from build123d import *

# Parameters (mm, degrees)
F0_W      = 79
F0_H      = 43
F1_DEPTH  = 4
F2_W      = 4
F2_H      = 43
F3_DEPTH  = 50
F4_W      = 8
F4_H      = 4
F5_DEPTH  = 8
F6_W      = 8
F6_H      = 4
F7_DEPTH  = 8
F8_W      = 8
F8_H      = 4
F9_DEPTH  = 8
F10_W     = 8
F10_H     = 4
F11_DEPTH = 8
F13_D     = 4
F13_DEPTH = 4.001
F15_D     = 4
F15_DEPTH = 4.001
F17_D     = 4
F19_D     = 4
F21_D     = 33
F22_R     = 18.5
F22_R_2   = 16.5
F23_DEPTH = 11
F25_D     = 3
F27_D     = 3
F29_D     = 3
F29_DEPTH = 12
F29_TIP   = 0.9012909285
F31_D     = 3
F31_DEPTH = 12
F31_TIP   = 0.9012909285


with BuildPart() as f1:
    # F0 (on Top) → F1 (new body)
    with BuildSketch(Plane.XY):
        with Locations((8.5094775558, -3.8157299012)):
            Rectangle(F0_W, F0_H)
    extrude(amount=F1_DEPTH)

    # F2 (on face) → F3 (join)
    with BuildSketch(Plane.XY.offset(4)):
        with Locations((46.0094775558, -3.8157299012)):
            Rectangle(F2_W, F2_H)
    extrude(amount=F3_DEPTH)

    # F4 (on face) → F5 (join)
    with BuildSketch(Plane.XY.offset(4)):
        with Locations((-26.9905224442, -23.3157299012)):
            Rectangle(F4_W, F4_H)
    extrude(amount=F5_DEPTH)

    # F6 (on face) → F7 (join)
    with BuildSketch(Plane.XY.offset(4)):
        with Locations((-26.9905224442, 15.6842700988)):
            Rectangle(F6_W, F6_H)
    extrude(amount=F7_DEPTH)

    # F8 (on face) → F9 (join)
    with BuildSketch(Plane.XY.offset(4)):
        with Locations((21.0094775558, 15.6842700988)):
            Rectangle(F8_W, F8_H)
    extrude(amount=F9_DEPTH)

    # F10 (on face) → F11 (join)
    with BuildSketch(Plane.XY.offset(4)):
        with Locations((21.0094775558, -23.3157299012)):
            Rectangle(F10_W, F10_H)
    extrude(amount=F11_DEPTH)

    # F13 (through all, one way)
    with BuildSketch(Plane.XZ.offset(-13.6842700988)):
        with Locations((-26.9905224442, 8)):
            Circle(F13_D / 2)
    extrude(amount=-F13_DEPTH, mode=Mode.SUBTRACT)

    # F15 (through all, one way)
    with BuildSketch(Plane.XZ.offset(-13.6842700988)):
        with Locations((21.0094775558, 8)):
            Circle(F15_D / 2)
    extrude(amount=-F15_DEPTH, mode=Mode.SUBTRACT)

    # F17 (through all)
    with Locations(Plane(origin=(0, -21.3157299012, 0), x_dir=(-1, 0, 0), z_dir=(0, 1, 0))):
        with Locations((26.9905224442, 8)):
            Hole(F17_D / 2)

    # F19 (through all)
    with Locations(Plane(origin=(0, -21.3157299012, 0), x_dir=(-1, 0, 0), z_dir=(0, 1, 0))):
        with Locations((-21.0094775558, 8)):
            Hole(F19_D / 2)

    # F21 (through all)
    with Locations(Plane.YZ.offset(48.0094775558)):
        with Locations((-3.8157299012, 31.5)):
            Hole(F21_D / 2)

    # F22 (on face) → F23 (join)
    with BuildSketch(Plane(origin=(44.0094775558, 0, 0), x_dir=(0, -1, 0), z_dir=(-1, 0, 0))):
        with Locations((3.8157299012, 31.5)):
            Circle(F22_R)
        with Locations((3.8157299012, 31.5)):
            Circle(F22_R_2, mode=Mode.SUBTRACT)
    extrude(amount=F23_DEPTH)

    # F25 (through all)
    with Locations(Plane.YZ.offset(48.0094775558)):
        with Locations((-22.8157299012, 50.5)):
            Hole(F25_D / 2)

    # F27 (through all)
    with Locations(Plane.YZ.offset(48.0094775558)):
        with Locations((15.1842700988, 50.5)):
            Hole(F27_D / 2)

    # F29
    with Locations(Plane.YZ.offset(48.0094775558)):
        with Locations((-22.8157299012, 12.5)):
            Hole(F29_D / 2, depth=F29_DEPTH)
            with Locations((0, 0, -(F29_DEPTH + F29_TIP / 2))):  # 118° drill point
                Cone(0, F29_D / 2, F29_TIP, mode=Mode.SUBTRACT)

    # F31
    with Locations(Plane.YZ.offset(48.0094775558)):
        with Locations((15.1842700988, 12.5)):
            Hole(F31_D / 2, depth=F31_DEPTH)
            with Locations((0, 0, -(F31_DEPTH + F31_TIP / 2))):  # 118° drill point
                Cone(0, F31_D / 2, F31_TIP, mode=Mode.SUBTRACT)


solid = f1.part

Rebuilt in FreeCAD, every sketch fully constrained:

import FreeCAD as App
import Part
import Sketcher

doc = App.newDocument("Part")
body = doc.addObject("PartDesign::Body", "Body")

sketch1 = doc.addObject("Sketcher::SketchObject", "Sketch")
body.addObject(sketch1)
sketch1.AttachmentSupport = (doc.XY_Plane, [""])
sketch1.MapMode = "FlatFace"
sketch1.addGeometry([
    Part.LineSegment(App.Vector(-31, 18, 0), App.Vector(-31, -25, 0)),
    Part.LineSegment(App.Vector(-31, -25, 0), App.Vector(48, -25, 0)),
    Part.LineSegment(App.Vector(48, -25, 0), App.Vector(48, 18, 0)),
    Part.LineSegment(App.Vector(48, 18, 0), App.Vector(-31, 18, 0)),
], False)
sketch1.addConstraint([
    Sketcher.Constraint("Coincident", 0, 2, 1, 1),
    Sketcher.Constraint("Coincident", 1, 2, 2, 1),
    Sketcher.Constraint("Coincident", 2, 2, 3, 1),
    Sketcher.Constraint("Coincident", 3, 2, 0, 1),
    Sketcher.Constraint("Vertical", 0),
    Sketcher.Constraint("Horizontal", 1),
    Sketcher.Constraint("Vertical", 2),
    Sketcher.Constraint("Horizontal", 3),
    Sketcher.Constraint("DistanceX", 1, 1, 1, 2, 79.0),
    Sketcher.Constraint("DistanceY", 0, 2, 0, 1, 43.0),
    Sketcher.Constraint("DistanceY", 0, 2, -1, 1, 25.31573),
    Sketcher.Constraint("DistanceX", 0, 2, -1, 1, 30.990522),
])
pad1 = doc.addObject("PartDesign::Pad", "Pad")
body.addObject(pad1)
pad1.Profile = sketch1
pad1.Length = 4

sketch2 = doc.addObject("Sketcher::SketchObject", "Sketch001")
body.addObject(sketch2)
sketch2.AttachmentSupport = (doc.XY_Plane, [""])
sketch2.MapMode = "FlatFace"
sketch2.AttachmentOffset = App.Placement(App.Vector(0, 0, 4), App.Rotation())
sketch2.addGeometry([
    Part.LineSegment(App.Vector(44, 17.7, 0), App.Vector(44, -25.3, 0)),
    Part.LineSegment(App.Vector(44, -25.3, 0), App.Vector(48, -25.3, 0)),
    Part.LineSegment(App.Vector(48, -25.3, 0), App.Vector(48, 17.7, 0)),
    Part.LineSegment(App.Vector(48, 17.7, 0), App.Vector(44, 17.7, 0)),
], False)
sketch2.addConstraint([
    Sketcher.Constraint("Coincident", 0, 2, 1, 1),
    Sketcher.Constraint("Coincident", 1, 2, 2, 1),
    Sketcher.Constraint("Coincident", 2, 2, 3, 1),
    Sketcher.Constraint("Coincident", 3, 2, 0, 1),
    Sketcher.Constraint("Vertical", 0),
    Sketcher.Constraint("Horizontal", 1),
    Sketcher.Constraint("Vertical", 2),
    Sketcher.Constraint("Horizontal", 3),
    Sketcher.Constraint("DistanceX", 1, 1, 1, 2, 4.0),
    Sketcher.Constraint("DistanceY", 0, 2, 0, 1, 43.0),
    Sketcher.Constraint("DistanceY", 0, 2, -1, 1, 25.31573),
    Sketcher.Constraint("DistanceX", -1, 1, 0, 2, 44.009478),
])
pad2 = doc.addObject("PartDesign::Pad", "Pad001")
body.addObject(pad2)
pad2.Profile = sketch2
pad2.Length = 50

sketch3 = doc.addObject("Sketcher::SketchObject", "Sketch002")
body.addObject(sketch3)
sketch3.AttachmentSupport = (doc.XY_Plane, [""])
sketch3.MapMode = "FlatFace"
sketch3.AttachmentOffset = App.Placement(App.Vector(0, 0, 4), App.Rotation())
sketch3.addGeometry([
    Part.LineSegment(App.Vector(-31, -21.3, 0), App.Vector(-31, -25.3, 0)),
    Part.LineSegment(App.Vector(-31, -25.3, 0), App.Vector(-23, -25.3, 0)),
    Part.LineSegment(App.Vector(-23, -25.3, 0), App.Vector(-23, -21.3, 0)),
    Part.LineSegment(App.Vector(-23, -21.3, 0), App.Vector(-31, -21.3, 0)),
], False)
sketch3.addConstraint([
    Sketcher.Constraint("Coincident", 0, 2, 1, 1),
    Sketcher.Constraint("Coincident", 1, 2, 2, 1),
    Sketcher.Constraint("Coincident", 2, 2, 3, 1),
    Sketcher.Constraint("Coincident", 3, 2, 0, 1),
    Sketcher.Constraint("Vertical", 0),
    Sketcher.Constraint("Horizontal", 1),
    Sketcher.Constraint("Vertical", 2),
    Sketcher.Constraint("Horizontal", 3),
    Sketcher.Constraint("DistanceX", 1, 1, 1, 2, 8.0),
    Sketcher.Constraint("DistanceY", 0, 2, 0, 1, 4.0),
    Sketcher.Constraint("DistanceY", 0, 2, -1, 1, 25.31573),
    Sketcher.Constraint("DistanceX", 0, 2, -1, 1, 30.990522),
])
pad3 = doc.addObject("PartDesign::Pad", "Pad002")
body.addObject(pad3)
pad3.Profile = sketch3
pad3.Length = 8

sketch4 = doc.addObject("Sketcher::SketchObject", "Sketch003")
body.addObject(sketch4)
sketch4.AttachmentSupport = (doc.XY_Plane, [""])
sketch4.MapMode = "FlatFace"
sketch4.AttachmentOffset = App.Placement(App.Vector(0, 0, 4), App.Rotation())
sketch4.addGeometry([
    Part.LineSegment(App.Vector(-31, 17.7, 0), App.Vector(-31, 13.7, 0)),
    Part.LineSegment(App.Vector(-31, 13.7, 0), App.Vector(-23, 13.7, 0)),
    Part.LineSegment(App.Vector(-23, 13.7, 0), App.Vector(-23, 17.7, 0)),
    Part.LineSegment(App.Vector(-23, 17.7, 0), App.Vector(-31, 17.7, 0)),
], False)
sketch4.addConstraint([
    Sketcher.Constraint("Coincident", 0, 2, 1, 1),
    Sketcher.Constraint("Coincident", 1, 2, 2, 1),
    Sketcher.Constraint("Coincident", 2, 2, 3, 1),
    Sketcher.Constraint("Coincident", 3, 2, 0, 1),
    Sketcher.Constraint("Vertical", 0),
    Sketcher.Constraint("Horizontal", 1),
    Sketcher.Constraint("Vertical", 2),
    Sketcher.Constraint("Horizontal", 3),
    Sketcher.Constraint("DistanceX", 1, 1, 1, 2, 8.0),
    Sketcher.Constraint("DistanceY", 0, 2, 0, 1, 4.0),
    Sketcher.Constraint("DistanceY", -1, 1, 0, 2, 13.68427),
    Sketcher.Constraint("DistanceX", 0, 2, -1, 1, 30.990522),
])
pad4 = doc.addObject("PartDesign::Pad", "Pad003")
body.addObject(pad4)
pad4.Profile = sketch4
pad4.Length = 8

sketch5 = doc.addObject("Sketcher::SketchObject", "Sketch004")
body.addObject(sketch5)
sketch5.AttachmentSupport = (doc.XY_Plane, [""])
sketch5.MapMode = "FlatFace"
sketch5.AttachmentOffset = App.Placement(App.Vector(0, 0, 4), App.Rotation())
sketch5.addGeometry([
    Part.LineSegment(App.Vector(17, 17.7, 0), App.Vector(17, 13.7, 0)),
    Part.LineSegment(App.Vector(17, 13.7, 0), App.Vector(25, 13.7, 0)),
    Part.LineSegment(App.Vector(25, 13.7, 0), App.Vector(25, 17.7, 0)),
    Part.LineSegment(App.Vector(25, 17.7, 0), App.Vector(17, 17.7, 0)),
], False)
sketch5.addConstraint([
    Sketcher.Constraint("Coincident", 0, 2, 1, 1),
    Sketcher.Constraint("Coincident", 1, 2, 2, 1),
    Sketcher.Constraint("Coincident", 2, 2, 3, 1),
    Sketcher.Constraint("Coincident", 3, 2, 0, 1),
    Sketcher.Constraint("Vertical", 0),
    Sketcher.Constraint("Horizontal", 1),
    Sketcher.Constraint("Vertical", 2),
    Sketcher.Constraint("Horizontal", 3),
    Sketcher.Constraint("DistanceX", 1, 1, 1, 2, 8.0),
    Sketcher.Constraint("DistanceY", 0, 2, 0, 1, 4.0),
    Sketcher.Constraint("DistanceY", -1, 1, 0, 2, 13.68427),
    Sketcher.Constraint("DistanceX", -1, 1, 0, 2, 17.009478),
])
pad5 = doc.addObject("PartDesign::Pad", "Pad004")
body.addObject(pad5)
pad5.Profile = sketch5
pad5.Length = 8

sketch6 = doc.addObject("Sketcher::SketchObject", "Sketch005")
body.addObject(sketch6)
sketch6.AttachmentSupport = (doc.XY_Plane, [""])
sketch6.MapMode = "FlatFace"
sketch6.AttachmentOffset = App.Placement(App.Vector(0, 0, 4), App.Rotation())
sketch6.addGeometry([
    Part.LineSegment(App.Vector(17, -21.3, 0), App.Vector(17, -25.3, 0)),
    Part.LineSegment(App.Vector(17, -25.3, 0), App.Vector(25, -25.3, 0)),
    Part.LineSegment(App.Vector(25, -25.3, 0), App.Vector(25, -21.3, 0)),
    Part.LineSegment(App.Vector(25, -21.3, 0), App.Vector(17, -21.3, 0)),
], False)
sketch6.addConstraint([
    Sketcher.Constraint("Coincident", 0, 2, 1, 1),
    Sketcher.Constraint("Coincident", 1, 2, 2, 1),
    Sketcher.Constraint("Coincident", 2, 2, 3, 1),
    Sketcher.Constraint("Coincident", 3, 2, 0, 1),
    Sketcher.Constraint("Vertical", 0),
    Sketcher.Constraint("Horizontal", 1),
    Sketcher.Constraint("Vertical", 2),
    Sketcher.Constraint("Horizontal", 3),
    Sketcher.Constraint("DistanceX", 1, 1, 1, 2, 8.0),
    Sketcher.Constraint("DistanceY", 0, 2, 0, 1, 4.0),
    Sketcher.Constraint("DistanceY", 0, 2, -1, 1, 25.31573),
    Sketcher.Constraint("DistanceX", -1, 1, 0, 2, 17.009478),
])
pad6 = doc.addObject("PartDesign::Pad", "Pad005")
body.addObject(pad6)
pad6.Profile = sketch6
pad6.Length = 8

sketch7 = doc.addObject("Sketcher::SketchObject", "Sketch006")
body.addObject(sketch7)
sketch7.AttachmentSupport = (doc.XZ_Plane, [""])
sketch7.MapMode = "FlatFace"
sketch7.AttachmentOffset = App.Placement(App.Vector(0, 0, -13.68427), App.Rotation())
sketch7.addGeometry(Part.Circle(App.Vector(-27, 8, 0), App.Vector(0, 0, 1), 2), False)
sketch7.addConstraint([
    Sketcher.Constraint("Diameter", 0, 4.0),
    Sketcher.Constraint("DistanceY", -1, 1, 0, 3, 8.0),
    Sketcher.Constraint("DistanceX", 0, 3, -1, 1, 26.990522),
])
pocket1 = doc.addObject("PartDesign::Pocket", "Pocket")
body.addObject(pocket1)
pocket1.Profile = sketch7
pocket1.Type = "ThroughAll"

sketch8 = doc.addObject("Sketcher::SketchObject", "Sketch007")
body.addObject(sketch8)
sketch8.AttachmentSupport = (doc.XZ_Plane, [""])
sketch8.MapMode = "FlatFace"
sketch8.AttachmentOffset = App.Placement(App.Vector(0, 0, -13.68427), App.Rotation())
sketch8.addGeometry(Part.Circle(App.Vector(21, 8, 0), App.Vector(0, 0, 1), 2), False)
sketch8.addConstraint([
    Sketcher.Constraint("Diameter", 0, 4.0),
    Sketcher.Constraint("DistanceY", -1, 1, 0, 3, 8.0),
    Sketcher.Constraint("DistanceX", -1, 1, 0, 3, 21.009478),
])
pocket2 = doc.addObject("PartDesign::Pocket", "Pocket001")
body.addObject(pocket2)
pocket2.Profile = sketch8
pocket2.Type = "ThroughAll"

sketch9 = doc.addObject("Sketcher::SketchObject", "Sketch008")
body.addObject(sketch9)
sketch9.AttachmentSupport = (doc.XZ_Plane, [""])
sketch9.MapMode = "FlatFace"
sketch9.AttachmentOffset = App.Placement(App.Vector(0, 0, 21.31573), App.Rotation())
sketch9.addGeometry(Part.Circle(App.Vector(-27, 8, 0), App.Vector(0, 0, 1), 2), False)
sketch9.addConstraint([
    Sketcher.Constraint("Diameter", 0, 4.0),
    Sketcher.Constraint("DistanceY", -1, 1, 0, 3, 8.0),
    Sketcher.Constraint("DistanceX", 0, 3, -1, 1, 26.990522),
])
doc.recompute()
hole = doc.addObject("PartDesign::Hole", "Hole")
body.addObject(hole)
hole.Profile = sketch9
hole.ThreadType = "None"
hole.Diameter = 4
hole.DepthType = "ThroughAll"
hole.Reversed = True

sketch10 = doc.addObject("Sketcher::SketchObject", "Sketch009")
body.addObject(sketch10)
sketch10.AttachmentSupport = (doc.XZ_Plane, [""])
sketch10.MapMode = "FlatFace"
sketch10.AttachmentOffset = App.Placement(App.Vector(0, 0, 21.31573), App.Rotation())
sketch10.addGeometry(Part.Circle(App.Vector(21, 8, 0), App.Vector(0, 0, 1), 2), False)
sketch10.addConstraint([
    Sketcher.Constraint("Diameter", 0, 4.0),
    Sketcher.Constraint("DistanceY", -1, 1, 0, 3, 8.0),
    Sketcher.Constraint("DistanceX", -1, 1, 0, 3, 21.009478),
])
doc.recompute()
hole2 = doc.addObject("PartDesign::Hole", "Hole001")
body.addObject(hole2)
hole2.Profile = sketch10
hole2.ThreadType = "None"
hole2.Diameter = 4
hole2.DepthType = "ThroughAll"
hole2.Reversed = True

sketch11 = doc.addObject("Sketcher::SketchObject", "Sketch010")
body.addObject(sketch11)
sketch11.AttachmentSupport = (doc.YZ_Plane, [""])
sketch11.MapMode = "FlatFace"
sketch11.AttachmentOffset = App.Placement(App.Vector(0, 0, 48.009478), App.Rotation())
sketch11.addGeometry(Part.Circle(App.Vector(-4, 32, 0), App.Vector(0, 0, 1), 16), False)
sketch11.addConstraint([
    Sketcher.Constraint("Diameter", 0, 33.0),
    Sketcher.Constraint("DistanceY", -1, 1, 0, 3, 31.5),
    Sketcher.Constraint("DistanceX", 0, 3, -1, 1, 3.81573),
])
doc.recompute()
hole3 = doc.addObject("PartDesign::Hole", "Hole002")
body.addObject(hole3)
hole3.Profile = sketch11
hole3.ThreadType = "None"
hole3.Diameter = 33
hole3.DepthType = "ThroughAll"

sketch12 = doc.addObject("Sketcher::SketchObject", "Sketch011")
body.addObject(sketch12)
sketch12.AttachmentSupport = (doc.YZ_Plane, [""])
sketch12.MapMode = "FlatFace"
sketch12.AttachmentOffset = App.Placement(App.Vector(0, 0, 44.009478), App.Rotation())
sketch12.addGeometry([
    Part.Circle(App.Vector(-4, 32, 0), App.Vector(0, 0, 1), 18),
    Part.Circle(App.Vector(-4, 32, 0), App.Vector(0, 0, 1), 16),
], False)
sketch12.addConstraint([
    Sketcher.Constraint("Coincident", 1, 3, 0, 3),
    Sketcher.Constraint("Diameter", 0, 37.0),
    Sketcher.Constraint("Diameter", 1, 33.0),
    Sketcher.Constraint("DistanceY", -1, 1, 0, 3, 31.5),
    Sketcher.Constraint("DistanceX", 0, 3, -1, 1, 3.81573),
])
pad7 = doc.addObject("PartDesign::Pad", "Pad006")
body.addObject(pad7)
pad7.Profile = sketch12
pad7.Length = 11
pad7.Reversed = True

sketch13 = doc.addObject("Sketcher::SketchObject", "Sketch012")
body.addObject(sketch13)
sketch13.AttachmentSupport = (doc.YZ_Plane, [""])
sketch13.MapMode = "FlatFace"
sketch13.AttachmentOffset = App.Placement(App.Vector(0, 0, 48.009478), App.Rotation())
sketch13.addGeometry(Part.Circle(App.Vector(-22.8, 50.5, 0), App.Vector(0, 0, 1), 1.5), False)
sketch13.addConstraint([
    Sketcher.Constraint("Diameter", 0, 3.0),
    Sketcher.Constraint("DistanceY", -1, 1, 0, 3, 50.5),
    Sketcher.Constraint("DistanceX", 0, 3, -1, 1, 22.81573),
])
doc.recompute()
hole4 = doc.addObject("PartDesign::Hole", "Hole003")
body.addObject(hole4)
hole4.Profile = sketch13
hole4.ThreadType = "None"
hole4.Diameter = 3
hole4.DepthType = "ThroughAll"

sketch14 = doc.addObject("Sketcher::SketchObject", "Sketch013")
body.addObject(sketch14)
sketch14.AttachmentSupport = (doc.YZ_Plane, [""])
sketch14.MapMode = "FlatFace"
sketch14.AttachmentOffset = App.Placement(App.Vector(0, 0, 48.009478), App.Rotation())
sketch14.addGeometry(Part.Circle(App.Vector(15.2, 50.5, 0), App.Vector(0, 0, 1), 1.5), False)
sketch14.addConstraint([
    Sketcher.Constraint("Diameter", 0, 3.0),
    Sketcher.Constraint("DistanceY", -1, 1, 0, 3, 50.5),
    Sketcher.Constraint("DistanceX", -1, 1, 0, 3, 15.18427),
])
doc.recompute()
hole5 = doc.addObject("PartDesign::Hole", "Hole004")
body.addObject(hole5)
hole5.Profile = sketch14
hole5.ThreadType = "None"
hole5.Diameter = 3
hole5.DepthType = "ThroughAll"

sketch15 = doc.addObject("Sketcher::SketchObject", "Sketch014")
body.addObject(sketch15)
sketch15.AttachmentSupport = (doc.YZ_Plane, [""])
sketch15.MapMode = "FlatFace"
sketch15.AttachmentOffset = App.Placement(App.Vector(0, 0, 48.009478), App.Rotation())
sketch15.addGeometry(Part.Circle(App.Vector(-22.8, 12.5, 0), App.Vector(0, 0, 1), 1.5), False)
sketch15.addConstraint([
    Sketcher.Constraint("Diameter", 0, 3.0),
    Sketcher.Constraint("DistanceY", -1, 1, 0, 3, 12.5),
    Sketcher.Constraint("DistanceX", 0, 3, -1, 1, 22.81573),
])
doc.recompute()
hole6 = doc.addObject("PartDesign::Hole", "Hole005")
body.addObject(hole6)
hole6.Profile = sketch15
hole6.ThreadType = "None"
hole6.Diameter = 3
hole6.DepthType = "Dimension"
hole6.Depth = 12
hole6.DrillPoint = "Angled"
hole6.DrillPointAngle = 118

sketch16 = doc.addObject("Sketcher::SketchObject", "Sketch015")
body.addObject(sketch16)
sketch16.AttachmentSupport = (doc.YZ_Plane, [""])
sketch16.MapMode = "FlatFace"
sketch16.AttachmentOffset = App.Placement(App.Vector(0, 0, 48.009478), App.Rotation())
sketch16.addGeometry(Part.Circle(App.Vector(15.2, 12.5, 0), App.Vector(0, 0, 1), 1.5), False)
sketch16.addConstraint([
    Sketcher.Constraint("Diameter", 0, 3.0),
    Sketcher.Constraint("DistanceY", -1, 1, 0, 3, 12.5),
    Sketcher.Constraint("DistanceX", -1, 1, 0, 3, 15.18427),
])
doc.recompute()
hole7 = doc.addObject("PartDesign::Hole", "Hole006")
body.addObject(hole7)
hole7.Profile = sketch16
hole7.ThreadType = "None"
hole7.Diameter = 3
hole7.DepthType = "Dimension"
hole7.Depth = 12
hole7.DrillPoint = "Angled"
hole7.DrillPointAngle = 118

doc.recompute()
